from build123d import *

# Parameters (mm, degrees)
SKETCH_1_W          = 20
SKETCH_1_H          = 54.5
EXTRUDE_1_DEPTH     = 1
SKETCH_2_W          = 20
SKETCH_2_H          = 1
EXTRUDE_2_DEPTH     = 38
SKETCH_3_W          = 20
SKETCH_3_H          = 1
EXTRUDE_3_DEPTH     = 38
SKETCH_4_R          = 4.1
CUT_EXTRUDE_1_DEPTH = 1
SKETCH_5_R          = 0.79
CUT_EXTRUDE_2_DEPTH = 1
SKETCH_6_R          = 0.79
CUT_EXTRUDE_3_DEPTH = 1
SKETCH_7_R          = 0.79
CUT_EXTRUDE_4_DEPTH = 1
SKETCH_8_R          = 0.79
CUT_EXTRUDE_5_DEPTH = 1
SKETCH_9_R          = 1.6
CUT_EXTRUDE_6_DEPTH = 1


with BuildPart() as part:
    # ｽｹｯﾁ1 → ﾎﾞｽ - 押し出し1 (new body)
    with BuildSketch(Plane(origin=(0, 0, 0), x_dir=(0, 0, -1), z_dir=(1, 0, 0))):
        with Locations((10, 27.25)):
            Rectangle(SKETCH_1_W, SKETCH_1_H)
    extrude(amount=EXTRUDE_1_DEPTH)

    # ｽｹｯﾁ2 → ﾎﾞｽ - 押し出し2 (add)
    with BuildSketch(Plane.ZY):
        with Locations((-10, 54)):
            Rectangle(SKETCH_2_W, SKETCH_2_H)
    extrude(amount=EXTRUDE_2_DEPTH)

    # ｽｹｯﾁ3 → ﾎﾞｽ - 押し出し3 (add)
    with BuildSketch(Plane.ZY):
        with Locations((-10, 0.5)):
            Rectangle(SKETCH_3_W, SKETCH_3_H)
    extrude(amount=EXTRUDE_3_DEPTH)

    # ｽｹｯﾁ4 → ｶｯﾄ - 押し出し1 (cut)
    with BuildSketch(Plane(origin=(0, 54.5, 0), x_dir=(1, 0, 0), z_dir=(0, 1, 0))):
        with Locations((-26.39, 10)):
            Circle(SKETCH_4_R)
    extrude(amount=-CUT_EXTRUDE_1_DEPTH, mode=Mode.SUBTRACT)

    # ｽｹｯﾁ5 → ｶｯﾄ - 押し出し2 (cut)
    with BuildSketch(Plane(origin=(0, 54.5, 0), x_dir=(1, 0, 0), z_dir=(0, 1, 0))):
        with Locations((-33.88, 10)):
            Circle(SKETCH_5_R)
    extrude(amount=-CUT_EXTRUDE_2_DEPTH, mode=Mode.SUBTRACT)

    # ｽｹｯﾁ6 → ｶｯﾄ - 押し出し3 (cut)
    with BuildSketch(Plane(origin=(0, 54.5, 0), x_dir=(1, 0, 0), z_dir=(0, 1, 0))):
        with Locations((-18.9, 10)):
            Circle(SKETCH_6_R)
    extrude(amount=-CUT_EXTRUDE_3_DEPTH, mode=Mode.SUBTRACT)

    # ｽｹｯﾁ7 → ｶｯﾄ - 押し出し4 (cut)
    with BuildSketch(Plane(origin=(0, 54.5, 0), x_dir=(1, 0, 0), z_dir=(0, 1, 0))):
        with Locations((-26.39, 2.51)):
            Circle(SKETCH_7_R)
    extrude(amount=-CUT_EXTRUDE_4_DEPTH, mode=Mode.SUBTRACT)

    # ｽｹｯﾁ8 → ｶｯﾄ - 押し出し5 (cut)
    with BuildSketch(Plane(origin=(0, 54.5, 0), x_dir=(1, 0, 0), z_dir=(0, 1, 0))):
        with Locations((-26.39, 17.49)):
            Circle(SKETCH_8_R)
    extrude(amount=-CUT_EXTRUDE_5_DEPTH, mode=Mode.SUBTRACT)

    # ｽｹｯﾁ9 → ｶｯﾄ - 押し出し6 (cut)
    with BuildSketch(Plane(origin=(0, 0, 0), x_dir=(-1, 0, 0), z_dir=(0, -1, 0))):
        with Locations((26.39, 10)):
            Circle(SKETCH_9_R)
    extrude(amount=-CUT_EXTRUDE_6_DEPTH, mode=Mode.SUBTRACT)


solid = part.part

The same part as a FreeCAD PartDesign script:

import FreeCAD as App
import Part
import Sketcher

V = App.Vector
Q = App.Units.Quantity

doc = App.newDocument("Part")
params = doc.addObject("Spreadsheet::Sheet", "Params")
for row, (alias, value) in enumerate([
    ("sketch1_height", "20 mm"),
    ("sketch1_width", "54.5 mm"),
    ("pad1_length", "1 mm"),
    ("sketch2_width", "1 mm"),
    ("sketch2_height", "20 mm"),
    ("pad2_length", "38 mm"),
    ("sketch3_width", "1 mm"),
    ("sketch3_height", "20 mm"),
    ("pad3_length", "38 mm"),
    ("sketch4_diameter", "8.2 mm"),
    ("pocket1_length", "1 mm"),
    ("sketch5_diameter", "1.58 mm"),
    ("pocket2_length", "1 mm"),
    ("sketch6_diameter", "1.58 mm"),
    ("pocket3_length", "1 mm"),
    ("sketch7_diameter", "1.58 mm"),
    ("pocket4_length", "1 mm"),
    ("sketch8_diameter", "1.58 mm"),
    ("pocket5_length", "1 mm"),
    ("sketch9_diameter", "3.2 mm"),
    ("pocket6_length", "1 mm"),
], start=1):
    params.set(f"A{row}", alias)
    params.set(f"B{row}", "=" + value)
    params.setAlias(f"B{row}", alias)

body = doc.addObject("PartDesign::Body", "Body")

# Sketch on YZ plane
sketch1 = body.newObject("Sketcher::SketchObject", "Sketch")
sketch1.AttachmentSupport = (doc.getObject("YZ_Plane"), [""])
sketch1.MapMode = "FlatFace"
sketch1.addGeometry(Part.LineSegment(V(54, 0, 0), V(0, 0, 0)), False)
sketch1.addGeometry(Part.LineSegment(V(0, 0, 0), V(0, -20, 0)), False)
sketch1.addGeometry(Part.LineSegment(V(0, -20, 0), V(54, -20, 0)), False)
sketch1.addGeometry(Part.LineSegment(V(54, -20, 0), V(54, 0, 0)), False)
sketch1.addConstraint(Sketcher.Constraint("Coincident", 0, 2, 1, 1))
sketch1.addConstraint(Sketcher.Constraint("Coincident", 1, 2, 2, 1))
sketch1.addConstraint(Sketcher.Constraint("Coincident", 2, 2, 3, 1))
sketch1.addConstraint(Sketcher.Constraint("Coincident", 3, 2, 0, 1))
sketch1.addConstraint(Sketcher.Constraint("Horizontal", 0))
sketch1.addConstraint(Sketcher.Constraint("Vertical", 1))
sketch1.addConstraint(Sketcher.Constraint("Horizontal", 2))
sketch1.addConstraint(Sketcher.Constraint("Vertical", 3))
sketch1.addConstraint(Sketcher.Constraint("Coincident", 0, 2, -1, 1))
sketch1.addConstraint(Sketcher.Constraint("DistanceY", 1, 2, 1, 1, Q("20 mm")))
sketch1.addConstraint(Sketcher.Constraint("DistanceX", 0, 2, 0, 1, Q("54.5 mm")))
sketch1.setExpression("Constraints[9]", "Params.sketch1_height")
sketch1.setExpression("Constraints[10]", "Params.sketch1_width")
pad1 = body.newObject("PartDesign::Pad", "Pad")
pad1.Profile = sketch1
pad1.setExpression("Length", "Params.pad1_length")

# Sketch on YZ plane
sketch2 = body.newObject("Sketcher::SketchObject", "Sketch001")
sketch2.AttachmentSupport = (doc.getObject("YZ_Plane"), [""])
sketch2.MapMode = "FlatFace"
sketch2.addGeometry(Part.LineSegment(V(54.5, -20, 0), V(53.5, -20, 0)), False)
sketch2.addGeometry(Part.LineSegment(V(53.5, -20, 0), V(53.5, 0, 0)), False)
sketch2.addGeometry(Part.LineSegment(V(53.5, 0, 0), V(54.5, 0, 0)), False)
sketch2.addGeometry(Part.LineSegment(V(54.5, 0, 0), V(54.5, -20, 0)), False)
sketch2.addConstraint(Sketcher.Constraint("Coincident", 0, 2, 1, 1))
sketch2.addConstraint(Sketcher.Constraint("Coincident", 1, 2, 2, 1))
sketch2.addConstraint(Sketcher.Constraint("Coincident", 2, 2, 3, 1))
sketch2.addConstraint(Sketcher.Constraint("Coincident", 3, 2, 0, 1))
sketch2.addConstraint(Sketcher.Constraint("Horizontal", 0))
sketch2.addConstraint(Sketcher.Constraint("Vertical", 1))
sketch2.addConstraint(Sketcher.Constraint("Horizontal", 2))
sketch2.addConstraint(Sketcher.Constraint("Vertical", 3))
sketch2.addConstraint(Sketcher.Constraint("PointOnObject", 1, 2, -1))
sketch2.addConstraint(Sketcher.Constraint("DistanceX", 0, 2, 0, 1, Q("1 mm")))
sketch2.addConstraint(Sketcher.Constraint("DistanceY", 1, 1, 1, 2, Q("20 mm")))
sketch2.addConstraint(Sketcher.Constraint("DistanceX", -1, 1, 0, 2, Q("53.5 mm")))
sketch2.setExpression("Constraints[9]", "Params.sketch2_width")
sketch2.setExpression("Constraints[10]", "Params.sketch2_height")
pad2 = body.newObject("PartDesign::Pad", "Pad001")
pad2.Profile = sketch2
pad2.setExpression("Length", "Params.pad2_length")
pad2.Reversed = True

# Sketch on YZ plane
sketch3 = body.newObject("Sketcher::SketchObject", "Sketch002")
sketch3.AttachmentSupport = (doc.getObject("YZ_Plane"), [""])
sketch3.MapMode = "FlatFace"
sketch3.addGeometry(Part.LineSegment(V(1, -20, 0), V(0, -20, 0)), False)
sketch3.addGeometry(Part.LineSegment(V(0, -20, 0), V(0, 0, 0)), False)
sketch3.addGeometry(Part.LineSegment(V(0, 0, 0), V(1, 0, 0)), False)
sketch3.addGeometry(Part.LineSegment(V(1, 0, 0), V(1, -20, 0)), False)
sketch3.addConstraint(Sketcher.Constraint("Coincident", 0, 2, 1, 1))
sketch3.addConstraint(Sketcher.Constraint("Coincident", 1, 2, 2, 1))
sketch3.addConstraint(Sketcher.Constraint("Coincident", 2, 2, 3, 1))
sketch3.addConstraint(Sketcher.Constraint("Coincident", 3, 2, 0, 1))
sketch3.addConstraint(Sketcher.Constraint("Horizontal", 0))
sketch3.addConstraint(Sketcher.Constraint("Vertical", 1))
sketch3.addConstraint(Sketcher.Constraint("Horizontal", 2))
sketch3.addConstraint(Sketcher.Constraint("Vertical", 3))
sketch3.addConstraint(Sketcher.Constraint("Coincident", 1, 2, -1, 1))
sketch3.addConstraint(Sketcher.Constraint("DistanceX", 0, 2, 0, 1, Q("1 mm")))
sketch3.addConstraint(Sketcher.Constraint("DistanceY", 1, 1, 1, 2, Q("20 mm")))
sketch3.setExpression("Constraints[9]", "Params.sketch3_width")
sketch3.setExpression("Constraints[10]", "Params.sketch3_height")
pad3 = body.newObject("PartDesign::Pad", "Pad002")
pad3.Profile = sketch3
pad3.setExpression("Length", "Params.pad3_length")
pad3.Reversed = True

# Sketch on XZ plane
sketch4 = body.newObject("Sketcher::SketchObject", "Sketch003")
sketch4.AttachmentSupport = (doc.getObject("XZ_Plane"), [""])
sketch4.MapMode = "FlatFace"
sketch4.AttachmentOffset = App.Placement(V(0, 0, -54.5), App.Rotation())
sketch4.addGeometry(Part.Circle(V(-26.4, -10, 0), V(0, 0, 1), 4.1), False)
sketch4.addConstraint(Sketcher.Constraint("Diameter", 0, Q("8.2 mm")))
sketch4.addConstraint(Sketcher.Constraint("DistanceY", 0, 3, -1, 1, Q("10 mm")))
sketch4.addConstraint(Sketcher.Constraint("DistanceX", 0, 3, -1, 1, Q("26.39 mm")))
sketch4.setExpression("Constraints[0]", "Params.sketch4_diameter")
pocket1 = body.newObject("PartDesign::Pocket", "Pocket")
pocket1.Profile = sketch4
pocket1.setExpression("Length", "Params.pocket1_length")
pocket1.Reversed = True

# Sketch on XZ plane
sketch5 = body.newObject("Sketcher::SketchObject", "Sketch004")
sketch5.AttachmentSupport = (doc.getObject("XZ_Plane"), [""])
sketch5.MapMode = "FlatFace"
sketch5.AttachmentOffset = App.Placement(V(0, 0, -54.5), App.Rotation())
sketch5.addGeometry(Part.Circle(V(-33.9, -10, 0), V(0, 0, 1), 0.8), False)
sketch5.addConstraint(Sketcher.Constraint("Diameter", 0, Q("1.58 mm")))
sketch5.addConstraint(Sketcher.Constraint("DistanceY", 0, 3, -1, 1, Q("10 mm")))
sketch5.addConstraint(Sketcher.Constraint("DistanceX", 0, 3, -1, 1, Q("33.88 mm")))
sketch5.setExpression("Constraints[0]", "Params.sketch5_diameter")
pocket2 = body.newObject("PartDesign::Pocket", "Pocket001")
pocket2.Profile = sketch5
pocket2.setExpression("Length", "Params.pocket2_length")
pocket2.Reversed = True

# Sketch on XZ plane
sketch6 = body.newObject("Sketcher::SketchObject", "Sketch005")
sketch6.AttachmentSupport = (doc.getObject("XZ_Plane"), [""])
sketch6.MapMode = "FlatFace"
sketch6.AttachmentOffset = App.Placement(V(0, 0, -54.5), App.Rotation())
sketch6.addGeometry(Part.Circle(V(-18.9, -10, 0), V(0, 0, 1), 0.8), False)
sketch6.addConstraint(Sketcher.Constraint("Diameter", 0, Q("1.58 mm")))
sketch6.addConstraint(Sketcher.Constraint("DistanceY", 0, 3, -1, 1, Q("10 mm")))
sketch6.addConstraint(Sketcher.Constraint("DistanceX", 0, 3, -1, 1, Q("18.9 mm")))
sketch6.setExpression("Constraints[0]", "Params.sketch6_diameter")
pocket3 = body.newObject("PartDesign::Pocket", "Pocket002")
pocket3.Profile = sketch6
pocket3.setExpression("Length", "Params.pocket3_length")
pocket3.Reversed = True

# Sketch on XZ plane
sketch7 = body.newObject("Sketcher::SketchObject", "Sketch006")
sketch7.AttachmentSupport = (doc.getObject("XZ_Plane"), [""])
sketch7.MapMode = "FlatFace"
sketch7.AttachmentOffset = App.Placement(V(0, 0, -54.5), App.Rotation())
sketch7.addGeometry(Part.Circle(V(-26.4, -2.5, 0), V(0, 0, 1), 0.8), False)
sketch7.addConstraint(Sketcher.Constraint("Diameter", 0, Q("1.58 mm")))
sketch7.addConstraint(Sketcher.Constraint("DistanceX", 0, 3, -1, 1, Q("26.39 mm")))
sketch7.addConstraint(Sketcher.Constraint("DistanceY", 0, 3, -1, 1, Q("2.51 mm")))
sketch7.setExpression("Constraints[0]", "Params.sketch7_diameter")
pocket4 = body.newObject("PartDesign::Pocket", "Pocket003")
pocket4.Profile = sketch7
pocket4.setExpression("Length", "Params.pocket4_length")
pocket4.Reversed = True

# Sketch on XZ plane
sketch8 = body.newObject("Sketcher::SketchObject", "Sketch007")
sketch8.AttachmentSupport = (doc.getObject("XZ_Plane"), [""])
sketch8.MapMode = "FlatFace"
sketch8.AttachmentOffset = App.Placement(V(0, 0, -54.5), App.Rotation())
sketch8.addGeometry(Part.Circle(V(-26.4, -17.5, 0), V(0, 0, 1), 0.8), False)
sketch8.addConstraint(Sketcher.Constraint("Diameter", 0, Q("1.58 mm")))
sketch8.addConstraint(Sketcher.Constraint("DistanceX", 0, 3, -1, 1, Q("26.39 mm")))
sketch8.addConstraint(Sketcher.Constraint("DistanceY", 0, 3, -1, 1, Q("17.49 mm")))
sketch8.setExpression("Constraints[0]", "Params.sketch8_diameter")
pocket5 = body.newObject("PartDesign::Pocket", "Pocket004")
pocket5.Profile = sketch8
pocket5.setExpression("Length", "Params.pocket5_length")
pocket5.Reversed = True

# Sketch on XZ plane
sketch9 = body.newObject("Sketcher::SketchObject", "Sketch008")
sketch9.AttachmentSupport = (doc.getObject("XZ_Plane"), [""])
sketch9.MapMode = "FlatFace"
sketch9.addGeometry(Part.Circle(V(-26.4, -10, 0), V(0, 0, 1), 1.6), False)
sketch9.addConstraint(Sketcher.Constraint("Diameter", 0, Q("3.2 mm")))
sketch9.addConstraint(Sketcher.Constraint("DistanceY", 0, 3, -1, 1, Q("10 mm")))
sketch9.addConstraint(Sketcher.Constraint("DistanceX", 0, 3, -1, 1, Q("26.39 mm")))
sketch9.setExpression("Constraints[0]", "Params.sketch9_diameter")
pocket6 = body.newObject("PartDesign::Pocket", "Pocket005")
pocket6.Profile = sketch9
pocket6.setExpression("Length", "Params.pocket6_length")

doc.recompute()
